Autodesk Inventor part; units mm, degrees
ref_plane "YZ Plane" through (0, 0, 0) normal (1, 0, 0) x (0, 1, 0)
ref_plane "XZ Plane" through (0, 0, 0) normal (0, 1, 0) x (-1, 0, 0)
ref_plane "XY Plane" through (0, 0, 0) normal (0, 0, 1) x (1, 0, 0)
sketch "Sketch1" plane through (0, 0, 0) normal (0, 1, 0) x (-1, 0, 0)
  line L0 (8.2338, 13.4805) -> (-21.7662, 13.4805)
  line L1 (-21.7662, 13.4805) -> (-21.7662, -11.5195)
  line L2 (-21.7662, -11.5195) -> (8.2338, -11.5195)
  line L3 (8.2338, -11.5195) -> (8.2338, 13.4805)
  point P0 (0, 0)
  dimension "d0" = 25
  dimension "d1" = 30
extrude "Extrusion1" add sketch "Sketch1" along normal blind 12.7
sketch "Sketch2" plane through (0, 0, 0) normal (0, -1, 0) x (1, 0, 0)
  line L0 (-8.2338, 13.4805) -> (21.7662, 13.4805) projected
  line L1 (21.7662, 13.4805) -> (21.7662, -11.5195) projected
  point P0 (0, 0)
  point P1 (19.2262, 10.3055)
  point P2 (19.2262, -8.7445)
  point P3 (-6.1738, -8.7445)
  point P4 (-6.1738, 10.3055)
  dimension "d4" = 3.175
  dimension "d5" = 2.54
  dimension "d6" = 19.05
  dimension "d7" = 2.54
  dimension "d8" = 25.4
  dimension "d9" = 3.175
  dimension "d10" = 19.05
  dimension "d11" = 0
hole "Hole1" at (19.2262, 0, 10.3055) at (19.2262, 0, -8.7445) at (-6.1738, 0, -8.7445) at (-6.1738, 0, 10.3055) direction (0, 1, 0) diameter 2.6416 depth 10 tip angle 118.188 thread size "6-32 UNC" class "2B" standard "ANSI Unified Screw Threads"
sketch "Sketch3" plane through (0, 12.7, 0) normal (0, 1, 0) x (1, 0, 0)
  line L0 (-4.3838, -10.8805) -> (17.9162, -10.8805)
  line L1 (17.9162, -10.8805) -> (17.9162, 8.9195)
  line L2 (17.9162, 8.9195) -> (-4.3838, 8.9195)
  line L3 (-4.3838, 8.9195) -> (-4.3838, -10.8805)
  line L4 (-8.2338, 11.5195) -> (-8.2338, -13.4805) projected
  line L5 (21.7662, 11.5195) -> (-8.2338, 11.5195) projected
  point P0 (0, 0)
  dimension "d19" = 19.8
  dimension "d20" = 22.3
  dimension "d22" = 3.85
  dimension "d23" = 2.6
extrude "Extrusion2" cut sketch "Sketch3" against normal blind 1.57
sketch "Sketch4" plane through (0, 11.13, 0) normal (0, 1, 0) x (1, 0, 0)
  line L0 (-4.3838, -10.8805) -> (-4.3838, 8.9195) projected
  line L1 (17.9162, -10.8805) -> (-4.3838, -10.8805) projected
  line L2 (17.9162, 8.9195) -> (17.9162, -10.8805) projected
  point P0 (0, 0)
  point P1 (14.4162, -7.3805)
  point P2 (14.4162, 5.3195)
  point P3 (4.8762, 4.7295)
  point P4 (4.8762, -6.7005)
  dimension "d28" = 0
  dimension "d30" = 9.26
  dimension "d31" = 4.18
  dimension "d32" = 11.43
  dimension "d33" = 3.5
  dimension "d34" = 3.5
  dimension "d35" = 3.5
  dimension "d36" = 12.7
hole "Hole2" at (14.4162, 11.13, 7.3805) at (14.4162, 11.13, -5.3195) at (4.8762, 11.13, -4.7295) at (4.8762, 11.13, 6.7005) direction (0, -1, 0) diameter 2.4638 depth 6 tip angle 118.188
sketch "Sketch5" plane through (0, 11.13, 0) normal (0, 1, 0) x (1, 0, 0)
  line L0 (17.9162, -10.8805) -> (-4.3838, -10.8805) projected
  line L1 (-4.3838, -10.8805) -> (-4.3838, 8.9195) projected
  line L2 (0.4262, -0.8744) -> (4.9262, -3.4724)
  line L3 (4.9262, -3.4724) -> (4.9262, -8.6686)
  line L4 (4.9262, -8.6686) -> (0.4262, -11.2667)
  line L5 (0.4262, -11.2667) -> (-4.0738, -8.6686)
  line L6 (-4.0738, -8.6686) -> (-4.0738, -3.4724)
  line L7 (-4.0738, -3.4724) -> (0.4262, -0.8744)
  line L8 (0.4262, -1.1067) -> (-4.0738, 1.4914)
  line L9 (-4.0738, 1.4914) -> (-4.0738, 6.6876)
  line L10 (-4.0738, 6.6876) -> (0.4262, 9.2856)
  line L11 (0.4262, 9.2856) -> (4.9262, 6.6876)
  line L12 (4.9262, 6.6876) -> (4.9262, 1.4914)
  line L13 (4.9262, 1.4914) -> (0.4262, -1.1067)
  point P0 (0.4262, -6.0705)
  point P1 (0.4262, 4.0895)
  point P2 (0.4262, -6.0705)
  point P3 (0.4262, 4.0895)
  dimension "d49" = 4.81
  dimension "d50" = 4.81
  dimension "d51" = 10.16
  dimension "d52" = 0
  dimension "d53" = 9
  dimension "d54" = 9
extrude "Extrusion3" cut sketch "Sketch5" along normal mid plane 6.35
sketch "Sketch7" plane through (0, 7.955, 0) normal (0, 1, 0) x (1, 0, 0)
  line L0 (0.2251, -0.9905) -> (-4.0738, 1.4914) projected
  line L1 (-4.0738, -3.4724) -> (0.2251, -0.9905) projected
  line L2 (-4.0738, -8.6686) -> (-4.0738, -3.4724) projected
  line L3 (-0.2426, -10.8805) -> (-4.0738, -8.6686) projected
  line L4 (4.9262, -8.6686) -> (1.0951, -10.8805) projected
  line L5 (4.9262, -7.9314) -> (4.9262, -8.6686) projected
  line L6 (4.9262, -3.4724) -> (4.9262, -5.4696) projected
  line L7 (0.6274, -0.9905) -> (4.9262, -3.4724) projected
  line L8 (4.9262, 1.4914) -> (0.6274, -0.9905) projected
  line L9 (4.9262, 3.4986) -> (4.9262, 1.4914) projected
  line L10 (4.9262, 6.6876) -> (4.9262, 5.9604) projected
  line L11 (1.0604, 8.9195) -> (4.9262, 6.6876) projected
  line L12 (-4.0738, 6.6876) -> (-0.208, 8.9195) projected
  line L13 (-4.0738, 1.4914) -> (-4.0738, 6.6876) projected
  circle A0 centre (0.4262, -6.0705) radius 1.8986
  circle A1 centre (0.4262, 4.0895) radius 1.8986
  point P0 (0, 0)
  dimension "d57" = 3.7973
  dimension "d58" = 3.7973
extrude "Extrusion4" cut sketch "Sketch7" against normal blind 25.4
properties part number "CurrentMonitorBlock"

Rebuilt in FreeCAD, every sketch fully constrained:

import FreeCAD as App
import Part
import Sketcher

V = App.Vector
Q = App.Units.Quantity


def add_polygon(sketch, points):
    """Adds a closed chain of lines whose ends are joined by coincident constraints."""
    first, n = sketch.GeometryCount, len(points)
    for a, b in zip(points, points[1:] + points[:1]):
        sketch.addGeometry(Part.LineSegment(App.Vector(*a, 0), App.Vector(*b, 0)), False)
    for i in range(n):
        sketch.addConstraint(Sketcher.Constraint("Coincident", first + i, 2, first + (i + 1) % n, 1))

doc = App.newDocument("Part")
body = doc.addObject("PartDesign::Body", "Body")

sketch1 = body.newObject("Sketcher::SketchObject", "Sketch")
sketch1.AttachmentSupport = (doc.getObject("XZ_Plane"), [""])
sketch1.MapMode = "FlatFace"
add_polygon(sketch1, [(-8, -12), (-8, 13), (22, 13), (22, -12)])
sketch1.addConstraint([
    Sketcher.Constraint("Vertical", 0),
    Sketcher.Constraint("Horizontal", 1),
    Sketcher.Constraint("Vertical", 2),
    Sketcher.Constraint("Horizontal", 3),
    Sketcher.Constraint("DistanceX", 1, 1, 1, 2, Q("1.1811 in")),
    Sketcher.Constraint("DistanceY", 0, 1, 0, 2, 25.0),
    Sketcher.Constraint("DistanceX", 0, 2, -1, 1, 8.2338),
    Sketcher.Constraint("DistanceY", -1, 1, 0, 2, 13.4805),
])
pad1 = body.newObject("PartDesign::Pad", "Pad")
pad1.Profile = sketch1
pad1.Length = Q("0.5 in")
pad1.Reversed = True

sketch2 = body.newObject("Sketcher::SketchObject", "Sketch001")
sketch2.AttachmentSupport = (doc.getObject("XZ_Plane"), [""])
sketch2.MapMode = "FlatFace"
sketch2.addGeometry([
    Part.Circle(V(19.2, 10.3, 0), V(0, 0, 1), 1.3),
    Part.Circle(V(19.2, -8.7, 0), V(0, 0, 1), 1.3),
    Part.Circle(V(-6.2, -8.7, 0), V(0, 0, 1), 1.3),
    Part.Circle(V(-6.2, 10.3, 0), V(0, 0, 1), 1.3),
], False)
sketch2.addConstraint([
    Sketcher.Constraint("Equal", 0, 1),
    Sketcher.Constraint("Equal", 1, 2),
    Sketcher.Constraint("Equal", 2, 3),
    Sketcher.Constraint("Horizontal", 1, 3, 2, 3),
    Sketcher.Constraint("Horizontal", 0, 3, 3, 3),
    Sketcher.Constraint("Vertical", 0, 3, 1, 3),
    Sketcher.Constraint("Vertical", 2, 3, 3, 3),
    Sketcher.Constraint("Diameter", 0, Q("0.104 in")),
    Sketcher.Constraint("DistanceX", 2, 3, 1, 3, Q("1 in")),
    Sketcher.Constraint("DistanceY", 1, 3, 0, 3, Q("0.75 in")),
    Sketcher.Constraint("DistanceX", -1, 1, 0, 3, 19.2262),
    Sketcher.Constraint("DistanceY", -1, 1, 0, 3, 10.3055),
])
doc.recompute()
hole = body.newObject("PartDesign::Hole", "Hole")
hole.Profile = sketch2
hole.ThreadType = "None"
hole.Diameter = Q("0.104 in")
hole.DepthType = "Dimension"
hole.Depth = Q("0.3937008 in")
hole.DrillPoint = "Angled"
hole.DrillPointAngle = 118.188

sketch3 = body.newObject("Sketcher::SketchObject", "Sketch002")
sketch3.AttachmentSupport = (doc.getObject("XZ_Plane"), [""])
sketch3.MapMode = "FlatFace"
sketch3.AttachmentOffset = App.Placement(V(0, 0, -0.5 * 25.4), App.Rotation())
add_polygon(sketch3, [(-4, -9), (-4, 11), (18, 11), (18, -9)])
sketch3.addConstraint([
    Sketcher.Constraint("Vertical", 0),
    Sketcher.Constraint("Horizontal", 1),
    Sketcher.Constraint("Vertical", 2),
    Sketcher.Constraint("Horizontal", 3),
    Sketcher.Constraint("DistanceX", 1, 1, 1, 2, 22.3),
    Sketcher.Constraint("DistanceY", 0, 1, 0, 2, 19.8),
    Sketcher.Constraint("DistanceX", 0, 2, -1, 1, Q("0.1726 in")),
    Sketcher.Constraint("DistanceY", -1, 1, 0, 2, 10.8805),
])
pocket1 = body.newObject("PartDesign::Pocket", "Pocket")
pocket1.Profile = sketch3
pocket1.Length = Q("0.061811 in")
pocket1.Reversed = True

sketch4 = body.newObject("Sketcher::SketchObject", "Sketch003")
sketch4.AttachmentSupport = (doc.getObject("XZ_Plane"), [""])
sketch4.MapMode = "FlatFace"
sketch4.AttachmentOffset = App.Placement(V(0, 0, -0.438189 * 25.4), App.Rotation())
sketch4.addGeometry([
    Part.Circle(V(14.4, 7.4, 0), V(0, 0, 1), 1.2),
    Part.Circle(V(14.4, -5.3, 0), V(0, 0, 1), 1.2),
    Part.Circle(V(4.9, -4.7, 0), V(0, 0, 1), 1.2),
    Part.Circle(V(4.9, 6.7, 0), V(0, 0, 1), 1.2),
], False)
sketch4.addConstraint([
    Sketcher.Constraint("Equal", 0, 1),
    Sketcher.Constraint("Equal", 1, 2),
    Sketcher.Constraint("Equal", 2, 3),
    Sketcher.Constraint("Vertical", 0, 3, 1, 3),
    Sketcher.Constraint("Vertical", 2, 3, 3, 3),
    Sketcher.Constraint("Diameter", 0, Q("0.097 in")),
    Sketcher.Constraint("DistanceY", 1, 3, 0, 3, Q("0.5 in")),
    Sketcher.Constraint("DistanceY", 2, 3, 3, 3, Q("0.45 in")),
    Sketcher.Constraint("DistanceY", 2, 3, -1, 1, Q("0.1862 in")),
    Sketcher.Constraint("DistanceX", 2, 3, 1, 3, Q("0.3756 in")),
    Sketcher.Constraint("DistanceX", -1, 1, 0, 3, 14.4162),
    Sketcher.Constraint("DistanceY", -1, 1, 0, 3, 7.3805),
])
doc.recompute()
hole2 = body.newObject("PartDesign::Hole", "Hole001")
hole2.Profile = sketch4
hole2.ThreadType = "None"
hole2.Diameter = Q("0.097 in")
hole2.DepthType = "Dimension"
hole2.Depth = 6
hole2.DrillPoint = "Angled"
hole2.DrillPointAngle = 118.188
hole2.Reversed = True

sketch5 = body.newObject("Sketcher::SketchObject", "Sketch004")
sketch5.AttachmentSupport = (doc.getObject("XZ_Plane"), [""])
sketch5.MapMode = "FlatFace"
sketch5.AttachmentOffset = App.Placement(V(0, 0, -0.438189 * 25.4), App.Rotation())
add_polygon(sketch5, [(0.4, 11.3), (4.9, 8.7), (4.9, 3.5), (0.6, 1), (4.9, -1.5), (4.9, -6.7), (0.4, -9.3), (-4.1, -6.7), (-4.1, -1.5), (0.2, 1), (-4.1, 3.5), (-4.1, 8.7)])
sketch5.addConstraint([
    Sketcher.Constraint("Vertical", 1),
    Sketcher.Constraint("Vertical", 4),
    Sketcher.Constraint("Vertical", 7),
    Sketcher.Constraint("Vertical", 10),
    Sketcher.Constraint("Parallel", 0, 3),
    Sketcher.Constraint("Parallel", 2, 5),
    Sketcher.Constraint("Parallel", 3, 6),
    Sketcher.Constraint("Parallel", 5, 8),
    Sketcher.Constraint("Parallel", 6, 9),
    Sketcher.Constraint("Parallel", 8, 11),
    Sketcher.Constraint("Horizontal", 4, 2, 6, 2),
    Sketcher.Constraint("Horizontal", 3, 2, 7, 2),
    Sketcher.Constraint("Horizontal", 2, 2, 8, 2),
    Sketcher.Constraint("Horizontal", 1, 2, 9, 2),
    Sketcher.Constraint("Horizontal", 0, 2, 10, 2),
    Sketcher.Constraint("Vertical", 1, 2, 3, 2),
    Sketcher.Constraint("Vertical", 7, 2, 9, 2),
    Sketcher.Constraint("Equal", 1, 4),
    Sketcher.Constraint("DistanceY", 3, 2, 0, 2, Q("0.4 in")),
    Sketcher.Constraint("Angle", 0, Q("-30.0002 deg")),
    Sketcher.Constraint("DistanceX", 6, 2, 4, 2, 9.0),
    Sketcher.Constraint("DistanceY", -1, 1, 2, 2, Q("0.039 in")),
    Sketcher.Constraint("DistanceY", 1, 2, 1, 1, 5.1962),
    Sketcher.Constraint("DistanceX", -1, 1, 2, 2, Q("0.0247 in")),
])
pocket2 = body.newObject("PartDesign::Pocket", "Pocket001")
pocket2.Profile = sketch5
pocket2.Length = Q("0.25 in")
pocket2.Midplane = True

sketch6 = body.newObject("Sketcher::SketchObject", "Sketch005")
sketch6.AttachmentSupport = (doc.getObject("XZ_Plane"), [""])
sketch6.MapMode = "FlatFace"
sketch6.AttachmentOffset = App.Placement(V(0, 0, -0.313189 * 25.4), App.Rotation())
sketch6.addGeometry([
    Part.Circle(V(0.4, 6.1, 0), V(0, 0, 1), 1.9),
    Part.Circle(V(0.4, -4.1, 0), V(0, 0, 1), 1.9),
], False)
sketch6.addConstraint([
    Sketcher.Constraint("Equal", 0, 1),
    Sketcher.Constraint("Vertical", 0, 3, 1, 3),
    Sketcher.Constraint("Diameter", 0, Q("0.1495 in")),
    Sketcher.Constraint("DistanceY", 1, 3, 0, 3, Q("0.4 in")),
    Sketcher.Constraint("DistanceY", -1, 1, 0, 3, Q("0.239 in")),
    Sketcher.Constraint("DistanceX", -1, 1, 0, 3, 0.4262),
])
pocket3 = body.newObject("PartDesign::Pocket", "Pocket002")
pocket3.Profile = sketch6
pocket3.Length = Q("1 in")
pocket3.Reversed = True

doc.recompute()
